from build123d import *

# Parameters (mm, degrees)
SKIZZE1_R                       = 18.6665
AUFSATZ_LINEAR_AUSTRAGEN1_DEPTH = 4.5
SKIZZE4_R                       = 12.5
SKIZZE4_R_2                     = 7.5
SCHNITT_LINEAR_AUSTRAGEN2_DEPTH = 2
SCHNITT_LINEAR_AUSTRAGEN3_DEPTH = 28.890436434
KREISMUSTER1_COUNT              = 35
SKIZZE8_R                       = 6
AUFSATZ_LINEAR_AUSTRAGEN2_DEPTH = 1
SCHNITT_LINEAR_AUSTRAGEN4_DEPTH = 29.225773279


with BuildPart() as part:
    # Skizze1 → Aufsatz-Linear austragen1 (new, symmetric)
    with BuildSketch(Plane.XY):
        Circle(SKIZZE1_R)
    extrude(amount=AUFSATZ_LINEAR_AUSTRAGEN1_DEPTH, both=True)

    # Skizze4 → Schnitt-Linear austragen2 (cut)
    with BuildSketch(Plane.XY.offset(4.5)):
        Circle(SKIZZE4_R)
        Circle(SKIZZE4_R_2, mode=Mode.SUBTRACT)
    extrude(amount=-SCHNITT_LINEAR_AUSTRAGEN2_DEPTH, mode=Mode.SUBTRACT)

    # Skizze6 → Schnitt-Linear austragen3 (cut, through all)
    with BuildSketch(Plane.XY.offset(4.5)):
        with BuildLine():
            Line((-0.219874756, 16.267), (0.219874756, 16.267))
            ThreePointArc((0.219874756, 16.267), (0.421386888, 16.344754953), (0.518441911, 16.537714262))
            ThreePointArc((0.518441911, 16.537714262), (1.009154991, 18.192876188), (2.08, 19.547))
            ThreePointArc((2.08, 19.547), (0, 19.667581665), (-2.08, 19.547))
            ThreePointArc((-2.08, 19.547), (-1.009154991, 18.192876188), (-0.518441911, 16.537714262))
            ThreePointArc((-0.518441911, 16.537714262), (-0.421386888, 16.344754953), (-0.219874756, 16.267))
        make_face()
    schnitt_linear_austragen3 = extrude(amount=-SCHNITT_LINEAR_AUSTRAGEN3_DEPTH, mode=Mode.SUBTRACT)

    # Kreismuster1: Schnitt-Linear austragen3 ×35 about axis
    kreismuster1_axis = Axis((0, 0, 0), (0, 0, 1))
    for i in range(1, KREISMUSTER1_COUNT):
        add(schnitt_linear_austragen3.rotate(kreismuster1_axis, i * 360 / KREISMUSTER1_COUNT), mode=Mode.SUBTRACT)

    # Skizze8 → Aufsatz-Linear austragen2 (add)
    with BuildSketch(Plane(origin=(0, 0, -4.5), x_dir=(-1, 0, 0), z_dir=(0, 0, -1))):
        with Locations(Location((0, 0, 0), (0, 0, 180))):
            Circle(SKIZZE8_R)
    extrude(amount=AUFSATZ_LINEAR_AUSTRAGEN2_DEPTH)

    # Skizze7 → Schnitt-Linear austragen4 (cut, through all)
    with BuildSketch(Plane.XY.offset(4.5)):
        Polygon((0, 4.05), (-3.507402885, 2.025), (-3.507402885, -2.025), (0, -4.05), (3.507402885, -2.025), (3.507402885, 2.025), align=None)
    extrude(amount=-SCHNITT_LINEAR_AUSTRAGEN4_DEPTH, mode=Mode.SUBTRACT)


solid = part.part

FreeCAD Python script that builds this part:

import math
import FreeCAD as App
import Part
import Sketcher

V = App.Vector
Q = App.Units.Quantity


def add_polygon(sketch, points):
    """Adds a closed chain of lines whose ends are joined by coincident constraints."""
    first, n = sketch.GeometryCount, len(points)
    for a, b in zip(points, points[1:] + points[:1]):
        sketch.addGeometry(Part.LineSegment(App.Vector(*a, 0), App.Vector(*b, 0)), False)
    for i in range(n):
        sketch.addConstraint(Sketcher.Constraint("Coincident", first + i, 2, first + (i + 1) % n, 1))

doc = App.newDocument("Part")
body = doc.addObject("PartDesign::Body", "Body")

# Sketch on XY plane
sketch1 = body.newObject("Sketcher::SketchObject", "Sketch")
sketch1.AttachmentSupport = (doc.getObject("XY_Plane"), [""])
sketch1.MapMode = "FlatFace"
sketch1.addGeometry(Part.Circle(V(0, 0, 0), V(0, 0, 1), 19), False)
sketch1.addConstraint([
    Sketcher.Constraint("Coincident", 0, 3, -1, 1),
    Sketcher.Constraint("Diameter", 0, 37.333),
])
pad1 = body.newObject("PartDesign::Pad", "Pad")
pad1.Profile = sketch1
pad1.Length = 9
pad1.Midplane = True

# Sketch on XY plane
sketch2 = body.newObject("Sketcher::SketchObject", "Sketch001")
sketch2.AttachmentSupport = (doc.getObject("XY_Plane"), [""])
sketch2.MapMode = "FlatFace"
sketch2.AttachmentOffset = App.Placement(V(0, 0, 4.5), App.Rotation())
sketch2.addGeometry([
    Part.Circle(V(0, 0, 0), V(0, 0, 1), 12),
    Part.Circle(V(0, 0, 0), V(0, 0, 1), 8),
], False)
sketch2.addConstraint([
    Sketcher.Constraint("Coincident", 0, 3, -1, 1),
    Sketcher.Constraint("Coincident", 1, 3, -1, 1),
    Sketcher.Constraint("Diameter", 0, 25.0),
    Sketcher.Constraint("Diameter", 1, 15.0),
])
pocket1 = body.newObject("PartDesign::Pocket", "Pocket")
pocket1.Profile = sketch2
pocket1.Length = 2

# Sketch on XY plane
sketch3 = body.newObject("Sketcher::SketchObject", "Sketch002")
sketch3.AttachmentSupport = (doc.getObject("XY_Plane"), [""])
sketch3.MapMode = "FlatFace"
sketch3.AttachmentOffset = App.Placement(V(0, 0, 4.5), App.Rotation())
sketch3.addGeometry([
    Part.LineSegment(V(-0.22, 16.27, 0), V(0.22, 16.27, 0)),  # 0
    Part.ArcOfCircle(Part.Circle(V(0.22, 16.57, 0), V(0, 0, 1), 0.3), math.radians(-90), math.radians(-6)),  # 1
    Part.ArcOfCircle(Part.Circle(V(5.06, 16.09, 0), V(0, 0, 1), 4.56), math.radians(131), math.radians(174)),  # 2
    Part.ArcOfCircle(Part.Circle(V(0, 1.67, 0), V(0, 0, 1), 18), math.radians(83.36), math.radians(96.64)),  # 3
    Part.ArcOfCircle(Part.Circle(V(-5.06, 16.09, 0), V(0, 0, 1), 4.56), math.radians(6), math.radians(49)),  # 4
    Part.ArcOfCircle(Part.Circle(V(-0.22, 16.57, 0), V(0, 0, 1), 0.3), math.radians(-174), math.radians(-90)),  # 5
], False)
sketch3.addConstraint([
    Sketcher.Constraint("Tangent", 0, 2, 1, 1),
    Sketcher.Constraint("Tangent", 1, 2, 2, 2),
    Sketcher.Constraint("Coincident", 2, 1, 3, 1),
    Sketcher.Constraint("Coincident", 3, 2, 4, 2),
    Sketcher.Constraint("Tangent", 4, 1, 5, 1),
    Sketcher.Constraint("Tangent", 5, 2, 0, 1),
    Sketcher.Constraint("Horizontal", 0),
    Sketcher.Constraint("Equal", 2, 4),
    Sketcher.Constraint("Equal", 1, 5),
    Sketcher.Constraint("Symmetric", 2, 3, 4, 3, -2),
    Sketcher.Constraint("PointOnObject", 3, 3, -2),
    Sketcher.Constraint("Radius", 3, 18.0),
    Sketcher.Constraint("Radius", 1, 0.3),
    Sketcher.Constraint("Radius", 2, 4.56),
    Sketcher.Constraint("DistanceX", -1, 1, 2, 1, 2.08),
    Sketcher.Constraint("DistanceY", 1, 3, 2, 1, 2.98),
    Sketcher.Constraint("DistanceY", -1, 1, 1, 3, 16.567),
    Sketcher.Constraint("DistanceX", 0, 1, 0, 2, 0.43975),
])
pocket2 = body.newObject("PartDesign::Pocket", "Pocket001")
pocket2.Profile = sketch3
pocket2.Type = "ThroughAll"
doc.recompute()

polarpattern = body.newObject("PartDesign::PolarPattern", "PolarPattern")
polarpattern.Originals = [pocket2]
polarpattern.Axis = (doc.getObject("Z_Axis"), [""])
polarpattern.Angle = 360
polarpattern.Occurrences = 35
body.Tip = polarpattern

# Sketch on XY plane
sketch4 = body.newObject("Sketcher::SketchObject", "Sketch003")
sketch4.AttachmentSupport = (doc.getObject("XY_Plane"), [""])
sketch4.MapMode = "FlatFace"
sketch4.AttachmentOffset = App.Placement(V(0, 0, -4.5), App.Rotation())
sketch4.addGeometry(Part.Circle(V(0, 0, 0), V(0, 0, 1), 6), False)
sketch4.addConstraint([
    Sketcher.Constraint("Coincident", 0, 3, -1, 1),
    Sketcher.Constraint("Diameter", 0, 12.0),
])
pad2 = body.newObject("PartDesign::Pad", "Pad001")
pad2.Profile = sketch4
pad2.Length = 1
pad2.Reversed = True

# Sketch on XY plane
sketch5 = body.newObject("Sketcher::SketchObject", "Sketch004")
sketch5.AttachmentSupport = (doc.getObject("XY_Plane"), [""])
sketch5.MapMode = "FlatFace"
sketch5.AttachmentOffset = App.Placement(V(0, 0, 4.5), App.Rotation())
add_polygon(sketch5, [(0, 4), (-3.5, 2), (-3.5, -2), (0, -4), (3.5, -2), (3.5, 2)])  # lines 0-5
sketch5.addConstraint([
    Sketcher.Constraint("Vertical", 1),
    Sketcher.Constraint("Vertical", 4),
    Sketcher.Constraint("Symmetric", 0, 2, 3, 2, -1, 1),
    Sketcher.Constraint("Symmetric", 2, 2, 5, 2, -1, 1),
    Sketcher.Constraint("PointOnObject", 2, 2, -2),
    Sketcher.Constraint("Parallel", 2, 5),
    Sketcher.Constraint("Horizontal", 1, 2, 3, 2),
    Sketcher.Constraint("Angle", 0, Q("-150 deg")),
    Sketcher.Constraint("DistanceY", 1, 2, 1, 1, 4.05),
    Sketcher.Constraint("DistanceY", 2, 2, 5, 2, 8.1),
])
pocket3 = body.newObject("PartDesign::Pocket", "Pocket002")
pocket3.Profile = sketch5
pocket3.Type = "ThroughAll"

doc.recompute()
